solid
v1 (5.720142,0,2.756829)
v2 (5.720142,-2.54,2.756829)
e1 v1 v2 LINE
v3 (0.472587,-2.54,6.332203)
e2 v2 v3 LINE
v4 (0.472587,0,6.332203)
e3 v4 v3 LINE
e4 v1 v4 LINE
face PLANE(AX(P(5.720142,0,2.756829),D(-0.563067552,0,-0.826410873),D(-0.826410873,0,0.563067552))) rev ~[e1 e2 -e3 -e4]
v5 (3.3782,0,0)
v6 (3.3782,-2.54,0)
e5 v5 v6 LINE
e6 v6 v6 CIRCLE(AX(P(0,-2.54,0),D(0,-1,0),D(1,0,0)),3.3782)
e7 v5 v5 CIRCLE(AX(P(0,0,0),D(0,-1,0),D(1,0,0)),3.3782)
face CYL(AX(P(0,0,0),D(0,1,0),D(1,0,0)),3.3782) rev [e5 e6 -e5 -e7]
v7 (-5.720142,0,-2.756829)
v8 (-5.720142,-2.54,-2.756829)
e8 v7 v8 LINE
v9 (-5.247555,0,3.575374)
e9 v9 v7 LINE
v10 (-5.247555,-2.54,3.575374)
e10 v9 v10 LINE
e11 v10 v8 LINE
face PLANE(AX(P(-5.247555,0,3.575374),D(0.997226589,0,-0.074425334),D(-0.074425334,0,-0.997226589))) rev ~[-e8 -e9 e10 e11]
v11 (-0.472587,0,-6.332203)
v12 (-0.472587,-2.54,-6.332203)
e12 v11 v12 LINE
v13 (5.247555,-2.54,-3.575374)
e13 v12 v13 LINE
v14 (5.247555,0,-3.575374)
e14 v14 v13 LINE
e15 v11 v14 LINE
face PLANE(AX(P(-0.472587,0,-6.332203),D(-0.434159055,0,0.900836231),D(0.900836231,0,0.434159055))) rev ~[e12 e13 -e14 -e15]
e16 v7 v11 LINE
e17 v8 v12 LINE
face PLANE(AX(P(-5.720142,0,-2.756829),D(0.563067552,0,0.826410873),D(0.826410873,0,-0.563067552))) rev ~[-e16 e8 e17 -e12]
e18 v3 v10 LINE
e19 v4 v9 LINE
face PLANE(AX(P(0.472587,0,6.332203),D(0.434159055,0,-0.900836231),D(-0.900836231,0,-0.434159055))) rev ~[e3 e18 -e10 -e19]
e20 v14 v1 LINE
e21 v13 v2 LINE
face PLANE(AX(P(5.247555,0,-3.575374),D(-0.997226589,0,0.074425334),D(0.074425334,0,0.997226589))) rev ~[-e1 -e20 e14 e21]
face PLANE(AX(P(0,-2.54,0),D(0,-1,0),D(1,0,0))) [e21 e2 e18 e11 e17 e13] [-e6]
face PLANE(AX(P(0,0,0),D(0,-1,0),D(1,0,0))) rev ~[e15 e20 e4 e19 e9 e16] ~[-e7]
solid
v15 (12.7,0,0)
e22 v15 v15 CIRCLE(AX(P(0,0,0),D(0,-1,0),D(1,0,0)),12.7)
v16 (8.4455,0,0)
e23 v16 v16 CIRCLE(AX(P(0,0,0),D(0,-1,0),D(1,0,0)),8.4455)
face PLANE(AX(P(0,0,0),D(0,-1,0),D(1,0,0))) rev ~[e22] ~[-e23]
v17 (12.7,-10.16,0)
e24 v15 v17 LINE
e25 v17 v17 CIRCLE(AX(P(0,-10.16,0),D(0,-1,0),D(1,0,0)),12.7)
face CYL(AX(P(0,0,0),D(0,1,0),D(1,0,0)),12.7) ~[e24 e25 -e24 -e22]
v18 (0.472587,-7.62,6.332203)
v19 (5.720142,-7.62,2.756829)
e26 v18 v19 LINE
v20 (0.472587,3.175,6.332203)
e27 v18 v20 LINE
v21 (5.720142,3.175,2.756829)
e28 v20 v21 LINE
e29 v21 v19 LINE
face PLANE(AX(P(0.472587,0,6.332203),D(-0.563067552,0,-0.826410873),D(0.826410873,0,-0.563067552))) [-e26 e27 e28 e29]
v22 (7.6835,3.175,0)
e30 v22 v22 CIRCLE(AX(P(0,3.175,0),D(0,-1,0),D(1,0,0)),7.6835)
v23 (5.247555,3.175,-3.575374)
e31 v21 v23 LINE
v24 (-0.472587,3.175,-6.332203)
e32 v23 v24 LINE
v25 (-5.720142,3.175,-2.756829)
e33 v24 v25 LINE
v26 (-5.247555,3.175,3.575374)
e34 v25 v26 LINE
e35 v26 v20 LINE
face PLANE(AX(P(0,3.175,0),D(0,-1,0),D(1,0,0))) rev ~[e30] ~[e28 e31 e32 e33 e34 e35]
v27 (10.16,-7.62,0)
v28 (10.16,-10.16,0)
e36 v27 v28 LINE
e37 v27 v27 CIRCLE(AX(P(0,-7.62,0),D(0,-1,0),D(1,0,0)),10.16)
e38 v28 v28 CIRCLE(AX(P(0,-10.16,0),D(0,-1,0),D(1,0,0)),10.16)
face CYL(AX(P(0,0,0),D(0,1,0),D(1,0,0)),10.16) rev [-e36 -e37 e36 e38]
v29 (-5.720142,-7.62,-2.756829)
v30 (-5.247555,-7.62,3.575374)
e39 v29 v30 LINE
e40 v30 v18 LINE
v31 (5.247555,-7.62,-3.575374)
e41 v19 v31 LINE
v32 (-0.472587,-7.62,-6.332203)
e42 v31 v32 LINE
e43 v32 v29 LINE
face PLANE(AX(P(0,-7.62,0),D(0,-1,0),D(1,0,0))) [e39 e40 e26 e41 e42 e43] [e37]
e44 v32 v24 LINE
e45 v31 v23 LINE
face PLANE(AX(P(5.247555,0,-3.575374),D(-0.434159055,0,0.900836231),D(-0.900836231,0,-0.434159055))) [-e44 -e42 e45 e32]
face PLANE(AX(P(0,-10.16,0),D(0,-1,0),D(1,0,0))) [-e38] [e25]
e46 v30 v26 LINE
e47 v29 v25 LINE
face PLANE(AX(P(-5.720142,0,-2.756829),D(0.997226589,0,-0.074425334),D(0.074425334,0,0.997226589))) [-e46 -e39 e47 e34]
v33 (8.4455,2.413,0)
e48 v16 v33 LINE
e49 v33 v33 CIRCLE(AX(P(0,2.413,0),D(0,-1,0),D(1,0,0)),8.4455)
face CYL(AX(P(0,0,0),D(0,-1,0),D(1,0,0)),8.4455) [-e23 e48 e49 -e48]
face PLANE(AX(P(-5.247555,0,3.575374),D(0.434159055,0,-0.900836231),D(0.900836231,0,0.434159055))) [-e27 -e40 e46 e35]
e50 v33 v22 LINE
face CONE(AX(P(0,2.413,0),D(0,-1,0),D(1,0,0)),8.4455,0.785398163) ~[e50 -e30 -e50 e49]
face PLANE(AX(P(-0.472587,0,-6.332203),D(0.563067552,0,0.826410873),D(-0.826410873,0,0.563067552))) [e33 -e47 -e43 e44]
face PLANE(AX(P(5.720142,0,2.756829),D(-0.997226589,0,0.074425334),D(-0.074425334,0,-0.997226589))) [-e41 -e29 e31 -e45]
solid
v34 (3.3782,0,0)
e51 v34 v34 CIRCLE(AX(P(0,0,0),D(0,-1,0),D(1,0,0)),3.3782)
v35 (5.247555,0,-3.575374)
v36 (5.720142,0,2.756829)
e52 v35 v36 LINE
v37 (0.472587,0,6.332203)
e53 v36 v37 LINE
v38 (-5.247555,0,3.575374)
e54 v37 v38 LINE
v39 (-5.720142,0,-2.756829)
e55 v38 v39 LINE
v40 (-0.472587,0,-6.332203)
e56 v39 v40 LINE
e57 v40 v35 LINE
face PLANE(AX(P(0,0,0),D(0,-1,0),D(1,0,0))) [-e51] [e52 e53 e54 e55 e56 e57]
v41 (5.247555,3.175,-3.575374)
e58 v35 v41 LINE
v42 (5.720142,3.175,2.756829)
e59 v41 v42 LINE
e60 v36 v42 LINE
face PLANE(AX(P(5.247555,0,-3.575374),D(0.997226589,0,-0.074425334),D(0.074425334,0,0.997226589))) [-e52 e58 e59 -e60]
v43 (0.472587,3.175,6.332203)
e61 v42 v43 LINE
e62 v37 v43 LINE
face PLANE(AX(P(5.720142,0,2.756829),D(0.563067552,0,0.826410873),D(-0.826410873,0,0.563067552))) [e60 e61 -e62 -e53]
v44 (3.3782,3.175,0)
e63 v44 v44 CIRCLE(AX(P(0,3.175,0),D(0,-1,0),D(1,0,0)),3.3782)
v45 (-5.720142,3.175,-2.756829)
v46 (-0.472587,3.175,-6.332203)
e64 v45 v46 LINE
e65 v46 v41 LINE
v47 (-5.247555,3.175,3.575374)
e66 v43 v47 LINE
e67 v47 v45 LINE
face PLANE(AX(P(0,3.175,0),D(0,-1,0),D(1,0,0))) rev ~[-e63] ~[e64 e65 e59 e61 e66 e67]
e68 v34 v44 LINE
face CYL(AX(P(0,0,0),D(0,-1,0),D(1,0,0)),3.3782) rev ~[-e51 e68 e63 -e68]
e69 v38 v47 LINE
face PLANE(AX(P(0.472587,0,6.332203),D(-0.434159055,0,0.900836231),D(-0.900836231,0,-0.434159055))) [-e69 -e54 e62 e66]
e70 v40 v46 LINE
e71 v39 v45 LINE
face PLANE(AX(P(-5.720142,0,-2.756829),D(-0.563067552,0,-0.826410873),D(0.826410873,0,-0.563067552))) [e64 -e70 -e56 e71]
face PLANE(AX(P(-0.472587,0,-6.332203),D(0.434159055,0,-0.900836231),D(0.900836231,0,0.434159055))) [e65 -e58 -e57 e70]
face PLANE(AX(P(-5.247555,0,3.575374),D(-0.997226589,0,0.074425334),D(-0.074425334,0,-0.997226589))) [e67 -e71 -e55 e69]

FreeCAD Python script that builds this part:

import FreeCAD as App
import Part
import Sketcher

V = App.Vector
Q = App.Units.Quantity


def edges_at(feature, points):
    """Names of the edges that pass closest to the given points."""
    edges = feature.Shape.Edges
    near = lambda p: min(range(len(edges)), key=lambda i: edges[i].distToShape(Part.Vertex(*p))[0])
    return sorted({f"Edge{near(p) + 1}" for p in points})

doc = App.newDocument("Part")
body = doc.addObject("PartDesign::Body", "Body")

# Sketch on XZ plane
sketch1 = body.newObject("Sketcher::SketchObject", "Sketch")
sketch1.AttachmentSupport = (doc.getObject("XZ_Plane"), [""])
sketch1.MapMode = "FlatFace"
sketch1.addGeometry(Part.Circle(V(0, 0, 0), V(0, 0, 1), 13), False)
sketch1.addGeometry(Part.Circle(V(0, 0, 0), V(0, 0, 1), 10), False)
sketch1.addConstraint(Sketcher.Constraint("Coincident", 0, 3, -1, 1))
sketch1.addConstraint(Sketcher.Constraint("Coincident", 1, 3, -1, 1))
sketch1.addConstraint(Sketcher.Constraint("Diameter", 0, Q("1 in")))
sketch1.addConstraint(Sketcher.Constraint("Diameter", 1, Q("0.8 in")))
pad1 = body.newObject("PartDesign::Pad", "Pad")
pad1.Profile = sketch1
pad1.Length = Q("0.4 in")

# Sketch on XZ plane
sketch2 = body.newObject("Sketcher::SketchObject", "Sketch001")
sketch2.AttachmentSupport = (doc.getObject("XZ_Plane"), [""])
sketch2.MapMode = "FlatFace"
sketch2.addGeometry(Part.Circle(V(0, 0, 0), V(0, 0, 1), 10), False)
sketch2.addGeometry(Part.Circle(V(0, 0, 0), V(0, 0, 1), 8), False)
sketch2.addConstraint(Sketcher.Constraint("Coincident", 0, 3, -1, 1))
sketch2.addConstraint(Sketcher.Constraint("Coincident", 1, 3, -1, 1))
sketch2.addConstraint(Sketcher.Constraint("Diameter", 0, Q("0.8 in")))
sketch2.addConstraint(Sketcher.Constraint("Diameter", 1, Q("0.665 in")))
pad2 = body.newObject("PartDesign::Pad", "Pad001")
pad2.Profile = sketch2
pad2.Length = Q("0.3 in")

# Sketch on XZ plane
sketch3 = body.newObject("Sketcher::SketchObject", "Sketch002")
sketch3.AttachmentSupport = (doc.getObject("XZ_Plane"), [""])
sketch3.MapMode = "FlatFace"
sketch3.addGeometry(Part.Circle(V(0, 0, 0), V(0, 0, 1), 8), False)
sketch3.addGeometry(Part.LineSegment(V(0, 6, 0), V(6, 3, 0)), False)
sketch3.addGeometry(Part.LineSegment(V(6, 3, 0), V(5, -4, 0)), False)
sketch3.addGeometry(Part.LineSegment(V(5, -4, 0), V(0, -6, 0)), False)
sketch3.addGeometry(Part.LineSegment(V(0, -6, 0), V(-6, -3, 0)), False)
sketch3.addGeometry(Part.LineSegment(V(-6, -3, 0), V(-5, 4, 0)), False)
sketch3.addGeometry(Part.LineSegment(V(-5, 4, 0), V(0, 6, 0)), False)
sketch3.addConstraint(Sketcher.Constraint("Coincident", 1, 2, 2, 1))
sketch3.addConstraint(Sketcher.Constraint("Coincident", 2, 2, 3, 1))
sketch3.addConstraint(Sketcher.Constraint("Coincident", 3, 2, 4, 1))
sketch3.addConstraint(Sketcher.Constraint("Coincident", 4, 2, 5, 1))
sketch3.addConstraint(Sketcher.Constraint("Coincident", 5, 2, 6, 1))
sketch3.addConstraint(Sketcher.Constraint("Coincident", 6, 2, 1, 1))
sketch3.addConstraint(Sketcher.Constraint("Coincident", 0, 3, -1, 1))
sketch3.addConstraint(Sketcher.Constraint("Symmetric", 1, 2, 4, 2, -1, 1))
sketch3.addConstraint(Sketcher.Constraint("Symmetric", 2, 2, 5, 2, -1, 1))
sketch3.addConstraint(Sketcher.Constraint("Symmetric", 3, 2, 6, 2, -1, 1))
sketch3.addConstraint(Sketcher.Constraint("Equal", 1, 2))
sketch3.addConstraint(Sketcher.Constraint("Equal", 2, 3))
sketch3.addConstraint(Sketcher.Constraint("Diameter", 0, Q("0.665 in")))
sketch3.addConstraint(Sketcher.Constraint("DistanceY", -1, 1, 1, 2, 2.756829))
sketch3.addConstraint(Sketcher.Constraint("DistanceY", 3, 2, 2, 2, 2.756829))
sketch3.addConstraint(Sketcher.Constraint("DistanceX", 3, 2, 1, 2, 6.192729))
sketch3.addConstraint(Sketcher.Constraint("DistanceX", 5, 2, 3, 2, 4.774968))
pad3 = body.newObject("PartDesign::Pad", "Pad002")
pad3.Profile = sketch3
pad3.Length = Q("0.3 in")

# Sketch on XZ plane
sketch4 = body.newObject("Sketcher::SketchObject", "Sketch003")
sketch4.AttachmentSupport = (doc.getObject("XZ_Plane"), [""])
sketch4.MapMode = "FlatFace"
sketch4.addGeometry(Part.Circle(V(0, 0, 0), V(0, 0, 1), 8), False)
sketch4.addGeometry(Part.LineSegment(V(0, 6, 0), V(6, 3, 0)), False)
sketch4.addGeometry(Part.LineSegment(V(6, 3, 0), V(5, -4, 0)), False)
sketch4.addGeometry(Part.LineSegment(V(5, -4, 0), V(0, -6, 0)), False)
sketch4.addGeometry(Part.LineSegment(V(0, -6, 0), V(-6, -3, 0)), False)
sketch4.addGeometry(Part.LineSegment(V(-6, -3, 0), V(-5, 4, 0)), False)
sketch4.addGeometry(Part.LineSegment(V(-5, 4, 0), V(0, 6, 0)), False)
sketch4.addConstraint(Sketcher.Constraint("Coincident", 1, 2, 2, 1))
sketch4.addConstraint(Sketcher.Constraint("Coincident", 2, 2, 3, 1))
sketch4.addConstraint(Sketcher.Constraint("Coincident", 3, 2, 4, 1))
sketch4.addConstraint(Sketcher.Constraint("Coincident", 4, 2, 5, 1))
sketch4.addConstraint(Sketcher.Constraint("Coincident", 5, 2, 6, 1))
sketch4.addConstraint(Sketcher.Constraint("Coincident", 6, 2, 1, 1))
sketch4.addConstraint(Sketcher.Constraint("Coincident", 0, 3, -1, 1))
sketch4.addConstraint(Sketcher.Constraint("Symmetric", 1, 2, 4, 2, -1, 1))
sketch4.addConstraint(Sketcher.Constraint("Symmetric", 2, 2, 5, 2, -1, 1))
sketch4.addConstraint(Sketcher.Constraint("Symmetric", 3, 2, 6, 2, -1, 1))
sketch4.addConstraint(Sketcher.Constraint("Equal", 1, 2))
sketch4.addConstraint(Sketcher.Constraint("Equal", 2, 3))
sketch4.addConstraint(Sketcher.Constraint("Diameter", 0, Q("0.665 in")))
sketch4.addConstraint(Sketcher.Constraint("DistanceY", -1, 1, 1, 2, 2.756829))
sketch4.addConstraint(Sketcher.Constraint("DistanceY", 3, 2, 2, 2, 2.756829))
sketch4.addConstraint(Sketcher.Constraint("DistanceX", 3, 2, 1, 2, 6.192729))
sketch4.addConstraint(Sketcher.Constraint("DistanceX", 5, 2, 3, 2, 4.774968))
pad4 = body.newObject("PartDesign::Pad", "Pad003")
pad4.Profile = sketch4
pad4.Length = Q("0.125 in")
pad4.Reversed = True
doc.recompute()

chamfer = body.newObject("PartDesign::Chamfer", "Chamfer")
chamfer.Base = (pad4, edges_at(pad4, [(-8.445, 3.175, 0)]))
chamfer.Size = Q("0.03 in")
body2 = doc.addObject("PartDesign::Body", "Body001")

# Sketch on XZ plane
sketch5 = body2.newObject("Sketcher::SketchObject", "Sketch004")
sketch5.AttachmentSupport = (doc.getObject("XZ_Plane001"), [""])
sketch5.MapMode = "FlatFace"
sketch5.addGeometry(Part.LineSegment(V(-0.5, -6.3, 0), V(5.2, -3.6, 0)), False)
sketch5.addGeometry(Part.LineSegment(V(5.2, -3.6, 0), V(5.7, 2.8, 0)), False)
sketch5.addGeometry(Part.LineSegment(V(5.7, 2.8, 0), V(0.5, 6.3, 0)), False)
sketch5.addGeometry(Part.LineSegment(V(0.5, 6.3, 0), V(-5.2, 3.6, 0)), False)
sketch5.addGeometry(Part.LineSegment(V(-5.2, 3.6, 0), V(-5.7, -2.8, 0)), False)
sketch5.addGeometry(Part.LineSegment(V(-5.7, -2.8, 0), V(-0.5, -6.3, 0)), False)
sketch5.addGeometry(Part.Circle(V(0, 0, 0), V(0, 0, 1), 3.4), False)
sketch5.addConstraint(Sketcher.Constraint("Coincident", 0, 2, 1, 1))
sketch5.addConstraint(Sketcher.Constraint("Coincident", 1, 2, 2, 1))
sketch5.addConstraint(Sketcher.Constraint("Coincident", 2, 2, 3, 1))
sketch5.addConstraint(Sketcher.Constraint("Coincident", 3, 2, 4, 1))
sketch5.addConstraint(Sketcher.Constraint("Coincident", 4, 2, 5, 1))
sketch5.addConstraint(Sketcher.Constraint("Coincident", 5, 2, 0, 1))
sketch5.addConstraint(Sketcher.Constraint("Coincident", 6, 3, -1, 1))
sketch5.addConstraint(Sketcher.Constraint("Symmetric", 0, 2, 3, 2, -1, 1))
sketch5.addConstraint(Sketcher.Constraint("Symmetric", 1, 2, 4, 2, -1, 1))
sketch5.addConstraint(Sketcher.Constraint("Symmetric", 2, 2, 5, 2, -1, 1))
sketch5.addConstraint(Sketcher.Constraint("Equal", 0, 1))
sketch5.addConstraint(Sketcher.Constraint("Equal", 1, 2))
sketch5.addConstraint(Sketcher.Constraint("Diameter", 6, Q("0.266 in")))
sketch5.addConstraint(Sketcher.Constraint("DistanceY", -1, 1, 1, 2, 2.756829))
sketch5.addConstraint(Sketcher.Constraint("DistanceX", 2, 2, 0, 2, 4.774968))
sketch5.addConstraint(Sketcher.Constraint("DistanceY", 3, 2, 2, 2, 2.756829))
sketch5.addConstraint(Sketcher.Constraint("DistanceX", 3, 2, 0, 2, 10.49511))
pad5 = body2.newObject("PartDesign::Pad", "Pad004")
pad5.Profile = sketch5
pad5.Length = Q("0.125 in")
pad5.Reversed = True
body3 = doc.addObject("PartDesign::Body", "Body002")

# Sketch on XZ plane
sketch6 = body3.newObject("Sketcher::SketchObject", "Sketch005")
sketch6.AttachmentSupport = (doc.getObject("XZ_Plane002"), [""])
sketch6.MapMode = "FlatFace"
sketch6.addGeometry(Part.LineSegment(V(-0.5, -6.3, 0), V(5.2, -3.6, 0)), False)
sketch6.addGeometry(Part.LineSegment(V(5.2, -3.6, 0), V(5.7, 2.8, 0)), False)
sketch6.addGeometry(Part.LineSegment(V(5.7, 2.8, 0), V(0.5, 6.3, 0)), False)
sketch6.addGeometry(Part.LineSegment(V(0.5, 6.3, 0), V(-5.2, 3.6, 0)), False)
sketch6.addGeometry(Part.LineSegment(V(-5.2, 3.6, 0), V(-5.7, -2.8, 0)), False)
sketch6.addGeometry(Part.LineSegment(V(-5.7, -2.8, 0), V(-0.5, -6.3, 0)), False)
sketch6.addGeometry(Part.Circle(V(0, 0, 0), V(0, 0, 1), 3.4), False)
sketch6.addConstraint(Sketcher.Constraint("Coincident", 0, 2, 1, 1))
sketch6.addConstraint(Sketcher.Constraint("Coincident", 1, 2, 2, 1))
sketch6.addConstraint(Sketcher.Constraint("Coincident", 2, 2, 3, 1))
sketch6.addConstraint(Sketcher.Constraint("Coincident", 3, 2, 4, 1))
sketch6.addConstraint(Sketcher.Constraint("Coincident", 4, 2, 5, 1))
sketch6.addConstraint(Sketcher.Constraint("Coincident", 5, 2, 0, 1))
sketch6.addConstraint(Sketcher.Constraint("Coincident", 6, 3, -1, 1))
sketch6.addConstraint(Sketcher.Constraint("Symmetric", 0, 2, 3, 2, -1, 1))
sketch6.addConstraint(Sketcher.Constraint("Symmetric", 1, 2, 4, 2, -1, 1))
sketch6.addConstraint(Sketcher.Constraint("Symmetric", 2, 2, 5, 2, -1, 1))
sketch6.addConstraint(Sketcher.Constraint("Equal", 0, 1))
sketch6.addConstraint(Sketcher.Constraint("Equal", 1, 2))
sketch6.addConstraint(Sketcher.Constraint("Diameter", 6, Q("0.266 in")))
sketch6.addConstraint(Sketcher.Constraint("DistanceY", -1, 1, 1, 2, 2.756829))
sketch6.addConstraint(Sketcher.Constraint("DistanceX", 2, 2, 0, 2, 4.774968))
sketch6.addConstraint(Sketcher.Constraint("DistanceY", 3, 2, 2, 2, 2.756829))
sketch6.addConstraint(Sketcher.Constraint("DistanceX", 3, 2, 0, 2, 10.49511))
pad6 = body3.newObject("PartDesign::Pad", "Pad005")
pad6.Profile = sketch6
pad6.Length = Q("0.1 in")

doc.recompute()
